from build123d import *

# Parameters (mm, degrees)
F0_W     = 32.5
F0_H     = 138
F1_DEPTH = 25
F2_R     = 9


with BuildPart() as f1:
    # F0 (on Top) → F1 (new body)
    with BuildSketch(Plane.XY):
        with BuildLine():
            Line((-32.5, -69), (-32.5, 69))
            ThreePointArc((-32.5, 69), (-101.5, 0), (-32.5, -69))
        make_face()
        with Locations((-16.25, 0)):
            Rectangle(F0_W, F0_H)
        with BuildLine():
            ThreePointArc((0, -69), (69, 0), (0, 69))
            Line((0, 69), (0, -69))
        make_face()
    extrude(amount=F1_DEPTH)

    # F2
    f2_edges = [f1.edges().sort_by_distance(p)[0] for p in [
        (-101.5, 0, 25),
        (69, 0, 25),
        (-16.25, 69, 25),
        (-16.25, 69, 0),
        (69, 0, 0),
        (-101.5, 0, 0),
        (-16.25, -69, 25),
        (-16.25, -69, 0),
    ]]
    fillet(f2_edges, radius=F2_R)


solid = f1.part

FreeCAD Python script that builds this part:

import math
import FreeCAD as App
import Part
import Sketcher


def edges_at(feature, points):
    """Names of the edges that pass closest to the given points."""
    edges = feature.Shape.Edges
    near = lambda p: min(range(len(edges)), key=lambda i: edges[i].distToShape(Part.Vertex(*p))[0])
    return sorted({f"Edge{near(p) + 1}" for p in points})

doc = App.newDocument("Part")
body = doc.addObject("PartDesign::Body", "Body")

# Sketch on XY plane
sketch1 = body.newObject("Sketcher::SketchObject", "Sketch")
sketch1.AttachmentSupport = (doc.getObject("XY_Plane"), [""])
sketch1.MapMode = "FlatFace"
sketch1.addGeometry(Part.ArcOfCircle(Part.Circle(App.Vector(-32.5, 0, 0), App.Vector(0, 0, 1), 69), math.radians(90), math.radians(270)), False)
sketch1.addGeometry(Part.LineSegment(App.Vector(-32.5, -69, 0), App.Vector(0, -69, 0)), False)
sketch1.addGeometry(Part.ArcOfCircle(Part.Circle(App.Vector(0, 0, 0), App.Vector(0, 0, 1), 69), math.radians(-90), math.radians(90)), False)
sketch1.addGeometry(Part.LineSegment(App.Vector(0, 69, 0), App.Vector(-32.5, 69, 0)), False)
sketch1.addConstraint(Sketcher.Constraint("Tangent", 0, 2, 1, 1))
sketch1.addConstraint(Sketcher.Constraint("Tangent", 1, 2, 2, 1))
sketch1.addConstraint(Sketcher.Constraint("Tangent", 2, 2, 3, 1))
sketch1.addConstraint(Sketcher.Constraint("Tangent", 3, 2, 0, 1))
sketch1.addConstraint(Sketcher.Constraint("Horizontal", 1))
sketch1.addConstraint(Sketcher.Constraint("Horizontal", 3))
sketch1.addConstraint(Sketcher.Constraint("Coincident", 2, 3, -1, 1))
sketch1.addConstraint(Sketcher.Constraint("Radius", 0, 69.0))
sketch1.addConstraint(Sketcher.Constraint("DistanceX", 1, 1, 1, 2, 32.5))
pad1 = body.newObject("PartDesign::Pad", "Pad")
pad1.Profile = sketch1
pad1.Length = 25
doc.recompute()

fillet = body.newObject("PartDesign::Fillet", "Fillet")
fillet.Base = (pad1, edges_at(pad1, [
    (-101.5, 0, 25),
    (69, 0, 25),
    (-16.25, 69, 25),
    (-16.25, 69, 0),
    (69, 0, 0),
    (-101.5, 0, 0),
    (-16.25, -69, 25),
    (-16.25, -69, 0),
]))
fillet.Radius = 9

doc.recompute()
